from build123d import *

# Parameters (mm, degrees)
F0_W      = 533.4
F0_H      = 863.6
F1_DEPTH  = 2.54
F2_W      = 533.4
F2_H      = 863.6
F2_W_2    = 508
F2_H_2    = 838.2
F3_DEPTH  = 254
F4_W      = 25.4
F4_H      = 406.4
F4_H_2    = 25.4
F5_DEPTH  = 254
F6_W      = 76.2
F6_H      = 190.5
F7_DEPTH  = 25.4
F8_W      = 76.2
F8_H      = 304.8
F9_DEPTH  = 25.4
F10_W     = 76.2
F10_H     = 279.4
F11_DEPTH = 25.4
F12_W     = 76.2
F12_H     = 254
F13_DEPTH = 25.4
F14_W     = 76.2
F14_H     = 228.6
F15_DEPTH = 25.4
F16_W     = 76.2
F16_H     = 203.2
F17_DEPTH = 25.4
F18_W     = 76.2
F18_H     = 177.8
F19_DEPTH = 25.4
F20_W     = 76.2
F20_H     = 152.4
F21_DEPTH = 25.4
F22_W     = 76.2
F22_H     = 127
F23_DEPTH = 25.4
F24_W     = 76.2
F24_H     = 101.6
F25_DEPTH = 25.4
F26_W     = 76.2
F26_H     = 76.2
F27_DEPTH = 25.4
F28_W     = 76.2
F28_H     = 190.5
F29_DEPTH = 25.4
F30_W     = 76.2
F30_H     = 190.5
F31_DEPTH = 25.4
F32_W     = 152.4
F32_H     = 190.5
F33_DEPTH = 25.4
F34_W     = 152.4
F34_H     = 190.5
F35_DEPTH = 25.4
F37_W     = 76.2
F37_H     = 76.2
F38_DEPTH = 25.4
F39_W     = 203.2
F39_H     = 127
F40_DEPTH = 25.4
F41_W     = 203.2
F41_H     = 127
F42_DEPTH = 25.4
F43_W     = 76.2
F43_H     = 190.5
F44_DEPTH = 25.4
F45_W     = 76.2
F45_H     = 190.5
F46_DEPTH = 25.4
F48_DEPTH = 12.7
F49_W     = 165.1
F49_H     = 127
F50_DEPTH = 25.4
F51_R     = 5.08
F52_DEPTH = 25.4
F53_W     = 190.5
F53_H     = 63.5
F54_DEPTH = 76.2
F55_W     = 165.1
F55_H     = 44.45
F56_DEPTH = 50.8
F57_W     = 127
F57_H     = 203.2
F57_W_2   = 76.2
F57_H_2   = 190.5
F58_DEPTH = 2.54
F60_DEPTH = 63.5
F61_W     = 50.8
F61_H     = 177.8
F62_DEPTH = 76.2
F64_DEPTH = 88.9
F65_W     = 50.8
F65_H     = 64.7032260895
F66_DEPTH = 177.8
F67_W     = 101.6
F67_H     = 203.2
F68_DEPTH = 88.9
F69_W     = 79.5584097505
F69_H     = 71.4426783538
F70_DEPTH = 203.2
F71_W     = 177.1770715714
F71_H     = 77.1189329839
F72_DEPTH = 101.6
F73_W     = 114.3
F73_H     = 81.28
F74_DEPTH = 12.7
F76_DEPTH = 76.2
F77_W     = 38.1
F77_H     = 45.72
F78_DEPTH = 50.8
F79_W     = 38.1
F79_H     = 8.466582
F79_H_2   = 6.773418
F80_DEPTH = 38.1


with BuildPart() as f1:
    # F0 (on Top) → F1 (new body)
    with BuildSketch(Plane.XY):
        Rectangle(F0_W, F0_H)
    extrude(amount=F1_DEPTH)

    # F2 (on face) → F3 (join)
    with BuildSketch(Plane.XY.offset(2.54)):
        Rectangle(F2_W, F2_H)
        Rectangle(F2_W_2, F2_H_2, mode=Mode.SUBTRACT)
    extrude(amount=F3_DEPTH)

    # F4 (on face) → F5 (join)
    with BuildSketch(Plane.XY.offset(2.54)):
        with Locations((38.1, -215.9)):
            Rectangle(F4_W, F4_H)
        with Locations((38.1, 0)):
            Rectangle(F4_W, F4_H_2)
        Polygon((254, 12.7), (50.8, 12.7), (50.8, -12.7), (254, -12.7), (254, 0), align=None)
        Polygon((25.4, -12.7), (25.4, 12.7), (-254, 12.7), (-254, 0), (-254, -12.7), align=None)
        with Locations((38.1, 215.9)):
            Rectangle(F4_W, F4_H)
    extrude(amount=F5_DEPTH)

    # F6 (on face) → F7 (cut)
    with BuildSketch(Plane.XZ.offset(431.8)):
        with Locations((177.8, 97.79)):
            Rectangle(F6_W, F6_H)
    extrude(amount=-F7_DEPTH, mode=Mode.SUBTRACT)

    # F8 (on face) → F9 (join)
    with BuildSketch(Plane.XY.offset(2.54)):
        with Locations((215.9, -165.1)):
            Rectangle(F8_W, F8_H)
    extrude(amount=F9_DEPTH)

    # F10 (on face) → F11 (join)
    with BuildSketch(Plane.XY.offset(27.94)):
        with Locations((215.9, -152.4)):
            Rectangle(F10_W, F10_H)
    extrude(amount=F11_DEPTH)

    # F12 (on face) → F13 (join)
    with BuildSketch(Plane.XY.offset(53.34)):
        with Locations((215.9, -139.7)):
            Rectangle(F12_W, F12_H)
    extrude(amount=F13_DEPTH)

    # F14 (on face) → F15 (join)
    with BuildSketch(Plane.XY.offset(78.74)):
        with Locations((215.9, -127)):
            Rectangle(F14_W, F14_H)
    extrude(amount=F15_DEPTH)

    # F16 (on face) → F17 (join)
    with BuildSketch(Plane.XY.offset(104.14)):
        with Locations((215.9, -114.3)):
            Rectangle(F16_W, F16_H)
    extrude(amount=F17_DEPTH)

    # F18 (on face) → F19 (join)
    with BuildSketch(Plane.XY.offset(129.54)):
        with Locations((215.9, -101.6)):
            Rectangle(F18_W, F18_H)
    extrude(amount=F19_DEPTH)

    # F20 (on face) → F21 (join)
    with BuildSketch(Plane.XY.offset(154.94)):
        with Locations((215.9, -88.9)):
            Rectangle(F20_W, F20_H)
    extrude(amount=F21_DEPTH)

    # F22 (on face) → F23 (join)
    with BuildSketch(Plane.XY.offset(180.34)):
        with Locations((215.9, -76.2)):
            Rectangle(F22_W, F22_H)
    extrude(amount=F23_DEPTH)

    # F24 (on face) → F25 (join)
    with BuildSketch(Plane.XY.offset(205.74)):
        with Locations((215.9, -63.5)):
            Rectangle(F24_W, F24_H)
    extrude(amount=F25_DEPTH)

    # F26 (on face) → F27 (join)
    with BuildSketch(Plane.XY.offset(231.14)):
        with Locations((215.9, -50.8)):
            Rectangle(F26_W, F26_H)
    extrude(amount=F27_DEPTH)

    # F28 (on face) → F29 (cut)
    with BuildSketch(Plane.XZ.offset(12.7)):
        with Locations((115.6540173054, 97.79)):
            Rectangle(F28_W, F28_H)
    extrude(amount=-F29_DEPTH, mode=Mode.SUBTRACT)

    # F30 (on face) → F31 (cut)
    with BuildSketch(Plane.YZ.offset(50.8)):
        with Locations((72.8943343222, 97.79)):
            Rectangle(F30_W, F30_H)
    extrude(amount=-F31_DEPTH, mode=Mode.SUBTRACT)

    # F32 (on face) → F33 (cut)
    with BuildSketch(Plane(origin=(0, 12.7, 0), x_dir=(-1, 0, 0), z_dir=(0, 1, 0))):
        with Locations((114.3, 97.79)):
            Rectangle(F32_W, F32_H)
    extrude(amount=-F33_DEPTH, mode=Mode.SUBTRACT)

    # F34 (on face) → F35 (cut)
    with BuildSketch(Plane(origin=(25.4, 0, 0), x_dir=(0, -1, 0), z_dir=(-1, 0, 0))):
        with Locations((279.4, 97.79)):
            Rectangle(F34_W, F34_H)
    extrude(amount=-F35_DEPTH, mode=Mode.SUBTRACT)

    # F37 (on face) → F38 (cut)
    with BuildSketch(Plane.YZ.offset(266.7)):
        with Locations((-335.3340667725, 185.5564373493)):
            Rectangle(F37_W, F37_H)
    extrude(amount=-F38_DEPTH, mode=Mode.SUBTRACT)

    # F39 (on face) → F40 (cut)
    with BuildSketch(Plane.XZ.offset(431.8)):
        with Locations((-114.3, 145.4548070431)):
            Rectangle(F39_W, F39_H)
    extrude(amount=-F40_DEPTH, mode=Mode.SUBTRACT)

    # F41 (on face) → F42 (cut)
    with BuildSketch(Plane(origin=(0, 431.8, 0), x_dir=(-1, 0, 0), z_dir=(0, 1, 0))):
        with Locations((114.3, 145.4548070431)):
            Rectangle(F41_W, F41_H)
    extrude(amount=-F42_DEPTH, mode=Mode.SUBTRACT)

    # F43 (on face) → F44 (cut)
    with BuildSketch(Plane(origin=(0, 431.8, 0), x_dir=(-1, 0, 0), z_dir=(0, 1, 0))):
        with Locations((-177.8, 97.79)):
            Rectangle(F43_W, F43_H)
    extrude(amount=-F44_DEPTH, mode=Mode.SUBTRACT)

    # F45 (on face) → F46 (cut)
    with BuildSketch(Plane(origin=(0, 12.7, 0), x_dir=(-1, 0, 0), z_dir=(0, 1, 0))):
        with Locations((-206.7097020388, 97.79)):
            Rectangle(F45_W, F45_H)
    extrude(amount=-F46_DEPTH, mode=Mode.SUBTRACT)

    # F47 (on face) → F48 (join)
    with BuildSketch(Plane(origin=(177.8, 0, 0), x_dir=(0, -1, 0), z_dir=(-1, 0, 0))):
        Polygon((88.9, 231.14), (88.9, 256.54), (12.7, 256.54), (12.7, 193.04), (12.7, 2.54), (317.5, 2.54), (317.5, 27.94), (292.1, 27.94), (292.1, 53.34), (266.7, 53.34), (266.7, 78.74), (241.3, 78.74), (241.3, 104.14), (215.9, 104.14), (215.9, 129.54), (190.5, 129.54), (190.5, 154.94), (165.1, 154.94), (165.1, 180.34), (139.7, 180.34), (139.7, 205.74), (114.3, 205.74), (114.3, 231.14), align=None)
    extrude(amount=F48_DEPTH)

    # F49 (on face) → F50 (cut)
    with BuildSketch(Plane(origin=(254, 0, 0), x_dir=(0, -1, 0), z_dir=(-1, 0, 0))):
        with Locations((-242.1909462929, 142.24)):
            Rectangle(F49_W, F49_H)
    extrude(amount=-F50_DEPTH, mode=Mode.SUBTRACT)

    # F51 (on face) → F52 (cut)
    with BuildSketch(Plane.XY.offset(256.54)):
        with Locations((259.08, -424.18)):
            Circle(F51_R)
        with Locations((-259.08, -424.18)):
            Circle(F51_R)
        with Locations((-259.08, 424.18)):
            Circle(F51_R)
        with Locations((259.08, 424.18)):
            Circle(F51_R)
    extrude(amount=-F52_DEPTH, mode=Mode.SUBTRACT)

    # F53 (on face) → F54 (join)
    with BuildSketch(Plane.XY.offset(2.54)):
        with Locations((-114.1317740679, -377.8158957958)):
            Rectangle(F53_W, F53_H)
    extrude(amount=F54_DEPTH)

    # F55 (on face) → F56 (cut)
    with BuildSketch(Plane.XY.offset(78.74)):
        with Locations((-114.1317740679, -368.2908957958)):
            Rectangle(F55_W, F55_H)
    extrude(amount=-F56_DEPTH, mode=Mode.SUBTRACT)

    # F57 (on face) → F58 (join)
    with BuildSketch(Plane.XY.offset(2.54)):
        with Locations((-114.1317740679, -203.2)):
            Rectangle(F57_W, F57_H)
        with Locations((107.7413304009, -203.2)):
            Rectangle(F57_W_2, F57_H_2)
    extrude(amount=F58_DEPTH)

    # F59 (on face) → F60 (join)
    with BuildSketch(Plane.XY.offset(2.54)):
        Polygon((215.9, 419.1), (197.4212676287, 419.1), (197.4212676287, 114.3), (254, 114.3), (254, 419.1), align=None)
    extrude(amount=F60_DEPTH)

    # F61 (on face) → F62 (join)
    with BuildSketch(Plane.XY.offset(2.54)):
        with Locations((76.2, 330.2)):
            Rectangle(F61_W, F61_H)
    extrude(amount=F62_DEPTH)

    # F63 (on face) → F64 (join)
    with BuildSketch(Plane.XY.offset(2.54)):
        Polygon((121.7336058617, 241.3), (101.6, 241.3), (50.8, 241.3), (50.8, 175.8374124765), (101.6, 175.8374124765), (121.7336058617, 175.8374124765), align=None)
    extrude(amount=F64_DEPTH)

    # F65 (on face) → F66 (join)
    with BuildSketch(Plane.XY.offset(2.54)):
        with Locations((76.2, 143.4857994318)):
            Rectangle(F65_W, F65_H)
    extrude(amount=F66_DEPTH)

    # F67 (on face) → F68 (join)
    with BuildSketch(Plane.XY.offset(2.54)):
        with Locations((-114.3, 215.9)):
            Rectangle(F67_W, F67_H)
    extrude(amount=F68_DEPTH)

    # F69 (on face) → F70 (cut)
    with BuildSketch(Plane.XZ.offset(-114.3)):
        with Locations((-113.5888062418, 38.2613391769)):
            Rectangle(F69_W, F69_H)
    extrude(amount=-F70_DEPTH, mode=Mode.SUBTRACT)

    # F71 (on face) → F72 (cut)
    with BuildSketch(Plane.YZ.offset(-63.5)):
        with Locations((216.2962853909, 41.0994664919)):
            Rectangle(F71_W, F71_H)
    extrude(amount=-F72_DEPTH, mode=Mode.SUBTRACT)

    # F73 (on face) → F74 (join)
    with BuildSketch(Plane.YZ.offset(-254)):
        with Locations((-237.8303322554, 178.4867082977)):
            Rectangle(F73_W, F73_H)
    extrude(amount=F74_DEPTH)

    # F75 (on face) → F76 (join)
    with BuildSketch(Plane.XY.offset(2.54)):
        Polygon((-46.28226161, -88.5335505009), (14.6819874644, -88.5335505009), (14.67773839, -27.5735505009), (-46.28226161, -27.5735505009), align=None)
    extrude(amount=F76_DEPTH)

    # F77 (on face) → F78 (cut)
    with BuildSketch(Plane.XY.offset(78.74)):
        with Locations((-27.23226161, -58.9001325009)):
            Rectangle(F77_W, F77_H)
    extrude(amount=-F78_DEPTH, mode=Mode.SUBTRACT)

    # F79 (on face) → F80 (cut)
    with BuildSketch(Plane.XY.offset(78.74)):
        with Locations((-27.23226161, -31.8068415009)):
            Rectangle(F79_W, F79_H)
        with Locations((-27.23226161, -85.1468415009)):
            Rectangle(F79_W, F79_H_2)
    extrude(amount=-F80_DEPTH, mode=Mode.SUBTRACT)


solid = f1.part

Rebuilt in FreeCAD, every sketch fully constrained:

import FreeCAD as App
import Part
import Sketcher
from FreeCAD import Vector
Q = App.Units.Quantity


def add_polygon(sketch, points):
    """Adds a closed chain of lines whose ends are joined by coincident constraints."""
    first, n = sketch.GeometryCount, len(points)
    for a, b in zip(points, points[1:] + points[:1]):
        sketch.addGeometry(Part.LineSegment(App.Vector(*a, 0), App.Vector(*b, 0)), False)
    for i in range(n):
        sketch.addConstraint(Sketcher.Constraint("Coincident", first + i, 2, first + (i + 1) % n, 1))

doc = App.newDocument("Part")
body = doc.addObject("PartDesign::Body", "Body")

# Sketch on XY plane
sketch1 = body.newObject("Sketcher::SketchObject", "Sketch")
sketch1.AttachmentSupport = (doc.getObject("XY_Plane"), [""])
sketch1.MapMode = "FlatFace"
add_polygon(sketch1, [(-267, 432), (-267, -432), (267, -432), (267, 432)])  # lines 0-3
sketch1.addConstraint([
    Sketcher.Constraint("Vertical", 0),
    Sketcher.Constraint("Horizontal", 1),
    Sketcher.Constraint("Vertical", 2),
    Sketcher.Constraint("Horizontal", 3),
    Sketcher.Constraint("Symmetric", 0, 2, 2, 2, -1, 1),
    Sketcher.Constraint("DistanceX", 1, 1, 1, 2, Q("21 in")),
    Sketcher.Constraint("DistanceY", 0, 2, 0, 1, Q("34 in")),
])
pad1 = body.newObject("PartDesign::Pad", "Pad")
pad1.Profile = sketch1
pad1.Length = Q("0.1 in")

# Sketch on XY plane
sketch2 = body.newObject("Sketcher::SketchObject", "Sketch001")
sketch2.AttachmentSupport = (doc.getObject("XY_Plane"), [""])
sketch2.MapMode = "FlatFace"
sketch2.AttachmentOffset = App.Placement(Vector(0, 0, 0.1 * 25.4), App.Rotation())
add_polygon(sketch2, [(-267, 432), (-267, -432), (267, -432), (267, 432)])  # lines 0-3
add_polygon(sketch2, [(254, -419), (-254, -419), (-254, 419), (254, 419)])  # lines 4-7
sketch2.addConstraint([
    Sketcher.Constraint("Vertical", 0),
    Sketcher.Constraint("Horizontal", 1),
    Sketcher.Constraint("Vertical", 2),
    Sketcher.Constraint("Horizontal", 3),
    Sketcher.Constraint("Horizontal", 4),
    Sketcher.Constraint("Vertical", 5),
    Sketcher.Constraint("Horizontal", 6),
    Sketcher.Constraint("Vertical", 7),
    Sketcher.Constraint("Symmetric", 0, 2, 2, 2, -1, 1),
    Sketcher.Constraint("Symmetric", 4, 2, 6, 2, -1, 1),
    Sketcher.Constraint("DistanceX", 1, 1, 1, 2, Q("21 in")),
    Sketcher.Constraint("DistanceX", 4, 2, 4, 1, Q("20 in")),
    Sketcher.Constraint("DistanceY", 0, 2, 0, 1, Q("34 in")),
    Sketcher.Constraint("DistanceY", 5, 1, 5, 2, Q("33 in")),
])
pad2 = body.newObject("PartDesign::Pad", "Pad001")
pad2.Profile = sketch2
pad2.Length = Q("10 in")

# Sketch on XY plane
sketch3 = body.newObject("Sketcher::SketchObject", "Sketch002")
sketch3.AttachmentSupport = (doc.getObject("XY_Plane"), [""])
sketch3.MapMode = "FlatFace"
sketch3.AttachmentOffset = App.Placement(Vector(0, 0, 0.1 * 25.4), App.Rotation())
add_polygon(sketch3, [(25, -419), (51, -419), (51, -13), (254, -13), (254, 13), (51, 13), (51, 419), (25, 419), (25, 13), (-254, 13), (-254, -13), (25, -13)])  # lines 0-11
sketch3.addConstraint([
    Sketcher.Constraint("Horizontal", 0),
    Sketcher.Constraint("Vertical", 1),
    Sketcher.Constraint("Horizontal", 2),
    Sketcher.Constraint("Vertical", 3),
    Sketcher.Constraint("Horizontal", 4),
    Sketcher.Constraint("Vertical", 5),
    Sketcher.Constraint("Horizontal", 6),
    Sketcher.Constraint("Vertical", 7),
    Sketcher.Constraint("Horizontal", 8),
    Sketcher.Constraint("Vertical", 9),
    Sketcher.Constraint("Horizontal", 10),
    Sketcher.Constraint("Vertical", 11),
    Sketcher.Constraint("Symmetric", 2, 2, 8, 2, -1, 1),
    Sketcher.Constraint("Symmetric", 1, 2, 4, 2, -1),
    Sketcher.Constraint("Symmetric", 7, 2, 10, 2, -1),
    Sketcher.Constraint("Equal", 6, 3),
    Sketcher.Constraint("Equal", 1, 5),
    Sketcher.Constraint("DistanceX", 0, 1, 0, 2, Q("1 in")),
    Sketcher.Constraint("DistanceX", 2, 1, 2, 2, Q("8 in")),
    Sketcher.Constraint("DistanceX", 8, 2, 8, 1, Q("11 in")),
    Sketcher.Constraint("DistanceY", 1, 1, 1, 2, Q("16 in")),
])
pad3 = body.newObject("PartDesign::Pad", "Pad002")
pad3.Profile = sketch3
pad3.Length = Q("10 in")

# Sketch on XZ plane
sketch4 = body.newObject("Sketcher::SketchObject", "Sketch003")
sketch4.AttachmentSupport = (doc.getObject("XZ_Plane"), [""])
sketch4.MapMode = "FlatFace"
sketch4.AttachmentOffset = App.Placement(Vector(0, 0, 17 * 25.4), App.Rotation())
add_polygon(sketch4, [(140, 193), (140, 3), (216, 3), (216, 193)])  # lines 0-3
sketch4.addConstraint([
    Sketcher.Constraint("Vertical", 0),
    Sketcher.Constraint("Horizontal", 1),
    Sketcher.Constraint("Vertical", 2),
    Sketcher.Constraint("Horizontal", 3),
    Sketcher.Constraint("DistanceX", 1, 1, 1, 2, Q("3 in")),
    Sketcher.Constraint("DistanceY", 0, 2, 0, 1, Q("7.5 in")),
    Sketcher.Constraint("DistanceX", -1, 1, 0, 2, Q("5.5 in")),
    Sketcher.Constraint("DistanceY", -1, 1, 0, 2, Q("0.1 in")),
])
pocket1 = body.newObject("PartDesign::Pocket", "Pocket")
pocket1.Profile = sketch4
pocket1.Length = Q("1 in")

# Sketch on XY plane
sketch5 = body.newObject("Sketcher::SketchObject", "Sketch004")
sketch5.AttachmentSupport = (doc.getObject("XY_Plane"), [""])
sketch5.MapMode = "FlatFace"
sketch5.AttachmentOffset = App.Placement(Vector(0, 0, 0.1 * 25.4), App.Rotation())
add_polygon(sketch5, [(178, -13), (178, -318), (254, -318), (254, -13)])  # lines 0-3
sketch5.addConstraint([
    Sketcher.Constraint("Vertical", 0),
    Sketcher.Constraint("Horizontal", 1),
    Sketcher.Constraint("Vertical", 2),
    Sketcher.Constraint("Horizontal", 3),
    Sketcher.Constraint("DistanceX", 1, 1, 1, 2, Q("3 in")),
    Sketcher.Constraint("DistanceY", 0, 2, 0, 1, Q("12 in")),
    Sketcher.Constraint("DistanceX", -1, 1, 0, 2, Q("7 in")),
    Sketcher.Constraint("DistanceY", 0, 2, -1, 1, Q("12.5 in")),
])
pad4 = body.newObject("PartDesign::Pad", "Pad003")
pad4.Profile = sketch5
pad4.Length = Q("1 in")

# Sketch on XY plane
sketch6 = body.newObject("Sketcher::SketchObject", "Sketch005")
sketch6.AttachmentSupport = (doc.getObject("XY_Plane"), [""])
sketch6.MapMode = "FlatFace"
sketch6.AttachmentOffset = App.Placement(Vector(0, 0, 1.1 * 25.4), App.Rotation())
add_polygon(sketch6, [(178, -13), (178, -292), (254, -292), (254, -13)])  # lines 0-3
sketch6.addConstraint([
    Sketcher.Constraint("Vertical", 0),
    Sketcher.Constraint("Horizontal", 1),
    Sketcher.Constraint("Vertical", 2),
    Sketcher.Constraint("Horizontal", 3),
    Sketcher.Constraint("DistanceX", 1, 1, 1, 2, Q("3 in")),
    Sketcher.Constraint("DistanceY", 0, 2, 0, 1, Q("11 in")),
    Sketcher.Constraint("DistanceX", -1, 1, 0, 2, Q("7 in")),
    Sketcher.Constraint("DistanceY", 0, 2, -1, 1, Q("11.5 in")),
])
pad5 = body.newObject("PartDesign::Pad", "Pad004")
pad5.Profile = sketch6
pad5.Length = Q("1 in")

# Sketch on XY plane
sketch7 = body.newObject("Sketcher::SketchObject", "Sketch006")
sketch7.AttachmentSupport = (doc.getObject("XY_Plane"), [""])
sketch7.MapMode = "FlatFace"
sketch7.AttachmentOffset = App.Placement(Vector(0, 0, 2.1 * 25.4), App.Rotation())
add_polygon(sketch7, [(178, -13), (178, -267), (254, -267), (254, -13)])  # lines 0-3
sketch7.addConstraint([
    Sketcher.Constraint("Vertical", 0),
    Sketcher.Constraint("Horizontal", 1),
    Sketcher.Constraint("Vertical", 2),
    Sketcher.Constraint("Horizontal", 3),
    Sketcher.Constraint("DistanceX", 1, 1, 1, 2, Q("3 in")),
    Sketcher.Constraint("DistanceY", 0, 2, 0, 1, Q("10 in")),
    Sketcher.Constraint("DistanceX", -1, 1, 0, 2, Q("7 in")),
    Sketcher.Constraint("DistanceY", 0, 2, -1, 1, Q("10.5 in")),
])
pad6 = body.newObject("PartDesign::Pad", "Pad005")
pad6.Profile = sketch7
pad6.Length = Q("1 in")

# Sketch on XY plane
sketch8 = body.newObject("Sketcher::SketchObject", "Sketch007")
sketch8.AttachmentSupport = (doc.getObject("XY_Plane"), [""])
sketch8.MapMode = "FlatFace"
sketch8.AttachmentOffset = App.Placement(Vector(0, 0, 3.1 * 25.4), App.Rotation())
add_polygon(sketch8, [(178, -13), (178, -241), (254, -241), (254, -13)])  # lines 0-3
sketch8.addConstraint([
    Sketcher.Constraint("Vertical", 0),
    Sketcher.Constraint("Horizontal", 1),
    Sketcher.Constraint("Vertical", 2),
    Sketcher.Constraint("Horizontal", 3),
    Sketcher.Constraint("DistanceX", 1, 1, 1, 2, Q("3 in")),
    Sketcher.Constraint("DistanceY", 0, 2, 0, 1, Q("9 in")),
    Sketcher.Constraint("DistanceX", -1, 1, 0, 2, Q("7 in")),
    Sketcher.Constraint("DistanceY", 0, 2, -1, 1, Q("9.5 in")),
])
pad7 = body.newObject("PartDesign::Pad", "Pad006")
pad7.Profile = sketch8
pad7.Length = Q("1 in")

# Sketch on XY plane
sketch9 = body.newObject("Sketcher::SketchObject", "Sketch008")
sketch9.AttachmentSupport = (doc.getObject("XY_Plane"), [""])
sketch9.MapMode = "FlatFace"
sketch9.AttachmentOffset = App.Placement(Vector(0, 0, 4.1 * 25.4), App.Rotation())
add_polygon(sketch9, [(178, -13), (178, -216), (254, -216), (254, -13)])  # lines 0-3
sketch9.addConstraint([
    Sketcher.Constraint("Vertical", 0),
    Sketcher.Constraint("Horizontal", 1),
    Sketcher.Constraint("Vertical", 2),
    Sketcher.Constraint("Horizontal", 3),
    Sketcher.Constraint("DistanceX", 1, 1, 1, 2, Q("3 in")),
    Sketcher.Constraint("DistanceY", 0, 2, 0, 1, Q("8 in")),
    Sketcher.Constraint("DistanceX", -1, 1, 0, 2, Q("7 in")),
    Sketcher.Constraint("DistanceY", 0, 2, -1, 1, Q("8.5 in")),
])
pad8 = body.newObject("PartDesign::Pad", "Pad007")
pad8.Profile = sketch9
pad8.Length = Q("1 in")

# Sketch on XY plane
sketch10 = body.newObject("Sketcher::SketchObject", "Sketch009")
sketch10.AttachmentSupport = (doc.getObject("XY_Plane"), [""])
sketch10.MapMode = "FlatFace"
sketch10.AttachmentOffset = App.Placement(Vector(0, 0, 5.1 * 25.4), App.Rotation())
add_polygon(sketch10, [(178, -13), (178, -190), (254, -190), (254, -13)])  # lines 0-3
sketch10.addConstraint([
    Sketcher.Constraint("Vertical", 0),
    Sketcher.Constraint("Horizontal", 1),
    Sketcher.Constraint("Vertical", 2),
    Sketcher.Constraint("Horizontal", 3),
    Sketcher.Constraint("DistanceX", 1, 1, 1, 2, Q("3 in")),
    Sketcher.Constraint("DistanceY", 0, 2, 0, 1, Q("7 in")),
    Sketcher.Constraint("DistanceX", -1, 1, 0, 2, Q("7 in")),
    Sketcher.Constraint("DistanceY", 0, 2, -1, 1, Q("7.5 in")),
])
pad9 = body.newObject("PartDesign::Pad", "Pad008")
pad9.Profile = sketch10
pad9.Length = Q("1 in")

# Sketch on XY plane
sketch11 = body.newObject("Sketcher::SketchObject", "Sketch010")
sketch11.AttachmentSupport = (doc.getObject("XY_Plane"), [""])
sketch11.MapMode = "FlatFace"
sketch11.AttachmentOffset = App.Placement(Vector(0, 0, 6.1 * 25.4), App.Rotation())
add_polygon(sketch11, [(178, -13), (178, -165), (254, -165), (254, -13)])  # lines 0-3
sketch11.addConstraint([
    Sketcher.Constraint("Vertical", 0),
    Sketcher.Constraint("Horizontal", 1),
    Sketcher.Constraint("Vertical", 2),
    Sketcher.Constraint("Horizontal", 3),
    Sketcher.Constraint("DistanceX", 1, 1, 1, 2, Q("3 in")),
    Sketcher.Constraint("DistanceY", 0, 2, 0, 1, Q("6 in")),
    Sketcher.Constraint("DistanceX", -1, 1, 0, 2, Q("7 in")),
    Sketcher.Constraint("DistanceY", 0, 2, -1, 1, Q("6.5 in")),
])
pad10 = body.newObject("PartDesign::Pad", "Pad009")
pad10.Profile = sketch11
pad10.Length = Q("1 in")

# Sketch on XY plane
sketch12 = body.newObject("Sketcher::SketchObject", "Sketch011")
sketch12.AttachmentSupport = (doc.getObject("XY_Plane"), [""])
sketch12.MapMode = "FlatFace"
sketch12.AttachmentOffset = App.Placement(Vector(0, 0, 7.1 * 25.4), App.Rotation())
add_polygon(sketch12, [(178, -13), (178, -140), (254, -140), (254, -13)])  # lines 0-3
sketch12.addConstraint([
    Sketcher.Constraint("Vertical", 0),
    Sketcher.Constraint("Horizontal", 1),
    Sketcher.Constraint("Vertical", 2),
    Sketcher.Constraint("Horizontal", 3),
    Sketcher.Constraint("DistanceX", 1, 1, 1, 2, Q("3 in")),
    Sketcher.Constraint("DistanceY", 0, 2, 0, 1, Q("5 in")),
    Sketcher.Constraint("DistanceX", -1, 1, 0, 2, Q("7 in")),
    Sketcher.Constraint("DistanceY", 0, 2, -1, 1, Q("5.5 in")),
])
pad11 = body.newObject("PartDesign::Pad", "Pad010")
pad11.Profile = sketch12
pad11.Length = Q("1 in")

# Sketch on XY plane
sketch13 = body.newObject("Sketcher::SketchObject", "Sketch012")
sketch13.AttachmentSupport = (doc.getObject("XY_Plane"), [""])
sketch13.MapMode = "FlatFace"
sketch13.AttachmentOffset = App.Placement(Vector(0, 0, 8.1 * 25.4), App.Rotation())
add_polygon(sketch13, [(178, -13), (178, -114), (254, -114), (254, -13)])  # lines 0-3
sketch13.addConstraint([
    Sketcher.Constraint("Vertical", 0),
    Sketcher.Constraint("Horizontal", 1),
    Sketcher.Constraint("Vertical", 2),
    Sketcher.Constraint("Horizontal", 3),
    Sketcher.Constraint("DistanceX", 1, 1, 1, 2, Q("3 in")),
    Sketcher.Constraint("DistanceY", 0, 2, 0, 1, Q("4 in")),
    Sketcher.Constraint("DistanceX", -1, 1, 0, 2, Q("7 in")),
    Sketcher.Constraint("DistanceY", 0, 2, -1, 1, Q("4.5 in")),
])
pad12 = body.newObject("PartDesign::Pad", "Pad011")
pad12.Profile = sketch13
pad12.Length = Q("1 in")

# Sketch on XY plane
sketch14 = body.newObject("Sketcher::SketchObject", "Sketch013")
sketch14.AttachmentSupport = (doc.getObject("XY_Plane"), [""])
sketch14.MapMode = "FlatFace"
sketch14.AttachmentOffset = App.Placement(Vector(0, 0, 9.1 * 25.4), App.Rotation())
add_polygon(sketch14, [(178, -13), (178, -89), (254, -89), (254, -13)])  # lines 0-3
sketch14.addConstraint([
    Sketcher.Constraint("Vertical", 0),
    Sketcher.Constraint("Horizontal", 1),
    Sketcher.Constraint("Vertical", 2),
    Sketcher.Constraint("Horizontal", 3),
    Sketcher.Constraint("Equal", 3, 0),
    Sketcher.Constraint("DistanceX", 1, 1, 1, 2, Q("3 in")),
    Sketcher.Constraint("DistanceX", -1, 1, 0, 2, Q("7 in")),
    Sketcher.Constraint("DistanceY", 0, 2, -1, 1, Q("3.5 in")),
])
pad13 = body.newObject("PartDesign::Pad", "Pad012")
pad13.Profile = sketch14
pad13.Length = Q("1 in")

# Sketch on XZ plane
sketch15 = body.newObject("Sketcher::SketchObject", "Sketch014")
sketch15.AttachmentSupport = (doc.getObject("XZ_Plane"), [""])
sketch15.MapMode = "FlatFace"
sketch15.AttachmentOffset = App.Placement(Vector(0, 0, 0.5 * 25.4), App.Rotation())
add_polygon(sketch15, [(78, 193), (78, 3), (154, 3), (154, 193)])  # lines 0-3
sketch15.addConstraint([
    Sketcher.Constraint("Vertical", 0),
    Sketcher.Constraint("Horizontal", 1),
    Sketcher.Constraint("Vertical", 2),
    Sketcher.Constraint("Horizontal", 3),
    Sketcher.Constraint("DistanceX", 1, 1, 1, 2, Q("3 in")),
    Sketcher.Constraint("DistanceY", 0, 2, 0, 1, Q("7.5 in")),
    Sketcher.Constraint("DistanceY", -1, 1, 0, 2, Q("0.1 in")),
    Sketcher.Constraint("DistanceX", -1, 1, 0, 2, 77.554017),
])
pocket2 = body.newObject("PartDesign::Pocket", "Pocket001")
pocket2.Profile = sketch15
pocket2.Length = Q("1 in")

# Sketch on YZ plane
sketch16 = body.newObject("Sketcher::SketchObject", "Sketch015")
sketch16.AttachmentSupport = (doc.getObject("YZ_Plane"), [""])
sketch16.MapMode = "FlatFace"
sketch16.AttachmentOffset = App.Placement(Vector(0, 0, 2 * 25.4), App.Rotation())
add_polygon(sketch16, [(35, 193), (35, 3), (111, 3), (111, 193)])  # lines 0-3
sketch16.addConstraint([
    Sketcher.Constraint("Vertical", 0),
    Sketcher.Constraint("Horizontal", 1),
    Sketcher.Constraint("Vertical", 2),
    Sketcher.Constraint("Horizontal", 3),
    Sketcher.Constraint("DistanceX", 1, 1, 1, 2, Q("3 in")),
    Sketcher.Constraint("DistanceY", 0, 2, 0, 1, Q("7.5 in")),
    Sketcher.Constraint("DistanceY", -1, 1, 0, 2, Q("0.1 in")),
    Sketcher.Constraint("DistanceX", -1, 1, 0, 2, 34.794334),
])
pocket3 = body.newObject("PartDesign::Pocket", "Pocket002")
pocket3.Profile = sketch16
pocket3.Length = Q("1 in")

# Sketch on XZ plane
sketch17 = body.newObject("Sketcher::SketchObject", "Sketch016")
sketch17.AttachmentSupport = (doc.getObject("XZ_Plane"), [""])
sketch17.MapMode = "FlatFace"
sketch17.AttachmentOffset = App.Placement(Vector(0, 0, -0.5 * 25.4), App.Rotation())
add_polygon(sketch17, [(-38, 193), (-38, 3), (-190, 3), (-190, 193)])  # lines 0-3
sketch17.addConstraint([
    Sketcher.Constraint("Vertical", 0),
    Sketcher.Constraint("Horizontal", 1),
    Sketcher.Constraint("Vertical", 2),
    Sketcher.Constraint("Horizontal", 3),
    Sketcher.Constraint("DistanceX", 1, 2, 1, 1, Q("6 in")),
    Sketcher.Constraint("DistanceY", 0, 2, 0, 1, Q("7.5 in")),
    Sketcher.Constraint("DistanceX", 0, 2, -1, 1, Q("1.5 in")),
    Sketcher.Constraint("DistanceY", -1, 1, 0, 2, Q("0.1 in")),
])
pocket4 = body.newObject("PartDesign::Pocket", "Pocket003")
pocket4.Profile = sketch17
pocket4.Length = Q("1 in")
pocket4.Reversed = True

# Sketch on YZ plane
sketch18 = body.newObject("Sketcher::SketchObject", "Sketch017")
sketch18.AttachmentSupport = (doc.getObject("YZ_Plane"), [""])
sketch18.MapMode = "FlatFace"
sketch18.AttachmentOffset = App.Placement(Vector(0, 0, 1 * 25.4), App.Rotation())
add_polygon(sketch18, [(-203, 193), (-203, 3), (-356, 3), (-356, 193)])  # lines 0-3
sketch18.addConstraint([
    Sketcher.Constraint("Vertical", 0),
    Sketcher.Constraint("Horizontal", 1),
    Sketcher.Constraint("Vertical", 2),
    Sketcher.Constraint("Horizontal", 3),
    Sketcher.Constraint("DistanceX", 1, 2, 1, 1, Q("6 in")),
    Sketcher.Constraint("DistanceY", 0, 2, 0, 1, Q("7.5 in")),
    Sketcher.Constraint("DistanceX", 0, 2, -1, 1, Q("8 in")),
    Sketcher.Constraint("DistanceY", -1, 1, 0, 2, Q("0.1 in")),
])
pocket5 = body.newObject("PartDesign::Pocket", "Pocket004")
pocket5.Profile = sketch18
pocket5.Length = Q("1 in")
pocket5.Reversed = True

# Sketch on YZ plane
sketch19 = body.newObject("Sketcher::SketchObject", "Sketch018")
sketch19.AttachmentSupport = (doc.getObject("YZ_Plane"), [""])
sketch19.MapMode = "FlatFace"
sketch19.AttachmentOffset = App.Placement(Vector(0, 0, 10.5 * 25.4), App.Rotation())
add_polygon(sketch19, [(-373, 224), (-373, 147), (-297, 147), (-297, 224)])  # lines 0-3
sketch19.addConstraint([
    Sketcher.Constraint("Vertical", 0),
    Sketcher.Constraint("Horizontal", 1),
    Sketcher.Constraint("Vertical", 2),
    Sketcher.Constraint("Horizontal", 3),
    Sketcher.Constraint("Equal", 3, 0),
    Sketcher.Constraint("DistanceX", 1, 1, 1, 2, Q("3 in")),
    Sketcher.Constraint("DistanceX", 0, 2, -1, 1, 373.434067),
    Sketcher.Constraint("DistanceY", -1, 1, 0, 2, 147.456437),
])
pocket6 = body.newObject("PartDesign::Pocket", "Pocket005")
pocket6.Profile = sketch19
pocket6.Length = Q("1 in")

# Sketch on XZ plane
sketch20 = body.newObject("Sketcher::SketchObject", "Sketch019")
sketch20.AttachmentSupport = (doc.getObject("XZ_Plane"), [""])
sketch20.MapMode = "FlatFace"
sketch20.AttachmentOffset = App.Placement(Vector(0, 0, 17 * 25.4), App.Rotation())
add_polygon(sketch20, [(-216, 209), (-216, 82), (-13, 82), (-13, 209)])  # lines 0-3
sketch20.addConstraint([
    Sketcher.Constraint("Vertical", 0),
    Sketcher.Constraint("Horizontal", 1),
    Sketcher.Constraint("Vertical", 2),
    Sketcher.Constraint("Horizontal", 3),
    Sketcher.Constraint("DistanceX", 1, 1, 1, 2, Q("8 in")),
    Sketcher.Constraint("DistanceY", 0, 2, 0, 1, Q("5 in")),
    Sketcher.Constraint("DistanceX", 0, 2, -1, 1, Q("8.5 in")),
    Sketcher.Constraint("DistanceY", -1, 1, 0, 2, 81.954807),
])
pocket7 = body.newObject("PartDesign::Pocket", "Pocket006")
pocket7.Profile = sketch20
pocket7.Length = Q("1 in")

# Sketch on XZ plane
sketch21 = body.newObject("Sketcher::SketchObject", "Sketch020")
sketch21.AttachmentSupport = (doc.getObject("XZ_Plane"), [""])
sketch21.MapMode = "FlatFace"
sketch21.AttachmentOffset = App.Placement(Vector(0, 0, -17 * 25.4), App.Rotation())
add_polygon(sketch21, [(-13, 209), (-13, 82), (-216, 82), (-216, 209)])  # lines 0-3
sketch21.addConstraint([
    Sketcher.Constraint("Vertical", 0),
    Sketcher.Constraint("Horizontal", 1),
    Sketcher.Constraint("Vertical", 2),
    Sketcher.Constraint("Horizontal", 3),
    Sketcher.Constraint("DistanceX", 1, 2, 1, 1, Q("8 in")),
    Sketcher.Constraint("DistanceY", 0, 2, 0, 1, Q("5 in")),
    Sketcher.Constraint("DistanceX", 0, 2, -1, 1, Q("0.5 in")),
    Sketcher.Constraint("DistanceY", -1, 1, 0, 2, 81.954807),
])
pocket8 = body.newObject("PartDesign::Pocket", "Pocket007")
pocket8.Profile = sketch21
pocket8.Length = Q("1 in")
pocket8.Reversed = True

# Sketch on XZ plane
sketch22 = body.newObject("Sketcher::SketchObject", "Sketch021")
sketch22.AttachmentSupport = (doc.getObject("XZ_Plane"), [""])
sketch22.MapMode = "FlatFace"
sketch22.AttachmentOffset = App.Placement(Vector(0, 0, -17 * 25.4), App.Rotation())
add_polygon(sketch22, [(216, 193), (216, 3), (140, 3), (140, 193)])  # lines 0-3
sketch22.addConstraint([
    Sketcher.Constraint("Vertical", 0),
    Sketcher.Constraint("Horizontal", 1),
    Sketcher.Constraint("Vertical", 2),
    Sketcher.Constraint("Horizontal", 3),
    Sketcher.Constraint("DistanceX", 1, 2, 1, 1, Q("3 in")),
    Sketcher.Constraint("DistanceY", 0, 2, 0, 1, Q("7.5 in")),
    Sketcher.Constraint("DistanceX", -1, 1, 0, 2, Q("8.5 in")),
    Sketcher.Constraint("DistanceY", -1, 1, 0, 2, Q("0.1 in")),
])
pocket9 = body.newObject("PartDesign::Pocket", "Pocket008")
pocket9.Profile = sketch22
pocket9.Length = Q("1 in")
pocket9.Reversed = True

# Sketch on XZ plane
sketch23 = body.newObject("Sketcher::SketchObject", "Sketch022")
sketch23.AttachmentSupport = (doc.getObject("XZ_Plane"), [""])
sketch23.MapMode = "FlatFace"
sketch23.AttachmentOffset = App.Placement(Vector(0, 0, -0.5 * 25.4), App.Rotation())
add_polygon(sketch23, [(245, 193), (245, 3), (169, 3), (169, 193)])  # lines 0-3
sketch23.addConstraint([
    Sketcher.Constraint("Vertical", 0),
    Sketcher.Constraint("Horizontal", 1),
    Sketcher.Constraint("Vertical", 2),
    Sketcher.Constraint("Horizontal", 3),
    Sketcher.Constraint("DistanceX", 1, 2, 1, 1, Q("3 in")),
    Sketcher.Constraint("DistanceY", 0, 2, 0, 1, Q("7.5 in")),
    Sketcher.Constraint("DistanceY", -1, 1, 0, 2, Q("0.1 in")),
    Sketcher.Constraint("DistanceX", -1, 1, 0, 2, 244.809702),
])
pocket10 = body.newObject("PartDesign::Pocket", "Pocket009")
pocket10.Profile = sketch23
pocket10.Length = Q("1 in")
pocket10.Reversed = True

# Sketch on YZ plane
sketch24 = body.newObject("Sketcher::SketchObject", "Sketch023")
sketch24.AttachmentSupport = (doc.getObject("YZ_Plane"), [""])
sketch24.MapMode = "FlatFace"
sketch24.AttachmentOffset = App.Placement(Vector(0, 0, 7 * 25.4), App.Rotation())
add_polygon(sketch24, [(-89, 231), (-89, 257), (-13, 257), (-13, 3), (-318, 3), (-318, 28), (-292, 28), (-292, 53), (-267, 53), (-267, 79), (-241, 79), (-241, 104), (-216, 104), (-216, 130), (-190, 130), (-190, 155), (-165, 155), (-165, 180), (-140, 180), (-140, 206), (-114, 206), (-114, 231)])  # lines 0-21
sketch24.addConstraint([
    Sketcher.Constraint("Vertical", 0),
    Sketcher.Constraint("Horizontal", 1),
    Sketcher.Constraint("Vertical", 2),
    Sketcher.Constraint("Horizontal", 3),
    Sketcher.Constraint("Vertical", 4),
    Sketcher.Constraint("Horizontal", 5),
    Sketcher.Constraint("Vertical", 6),
    Sketcher.Constraint("Horizontal", 7),
    Sketcher.Constraint("Vertical", 8),
    Sketcher.Constraint("Horizontal", 9),
    Sketcher.Constraint("Vertical", 10),
    Sketcher.Constraint("Horizontal", 11),
    Sketcher.Constraint("Vertical", 12),
    Sketcher.Constraint("Horizontal", 13),
    Sketcher.Constraint("Vertical", 14),
    Sketcher.Constraint("Horizontal", 15),
    Sketcher.Constraint("Vertical", 16),
    Sketcher.Constraint("Horizontal", 17),
    Sketcher.Constraint("Vertical", 18),
    Sketcher.Constraint("Horizontal", 19),
    Sketcher.Constraint("Vertical", 20),
    Sketcher.Constraint("Horizontal", 21),
    Sketcher.Constraint("Equal", 5, 7),
    Sketcher.Constraint("Equal", 7, 9),
    Sketcher.Constraint("Equal", 9, 11),
    Sketcher.Constraint("Equal", 11, 13),
    Sketcher.Constraint("Equal", 13, 15),
    Sketcher.Constraint("Equal", 15, 17),
    Sketcher.Constraint("Equal", 17, 19),
    Sketcher.Constraint("Equal", 19, 21),
    Sketcher.Constraint("Equal", 21, 0),
    Sketcher.Constraint("Equal", 0, 4),
    Sketcher.Constraint("Equal", 4, 6),
    Sketcher.Constraint("Equal", 6, 8),
    Sketcher.Constraint("Equal", 8, 10),
    Sketcher.Constraint("Equal", 10, 12),
    Sketcher.Constraint("Equal", 12, 14),
    Sketcher.Constraint("Equal", 14, 16),
    Sketcher.Constraint("Equal", 16, 18),
    Sketcher.Constraint("Equal", 18, 20),
    Sketcher.Constraint("DistanceX", 1, 1, 1, 2, Q("3 in")),
    Sketcher.Constraint("DistanceX", 3, 2, 3, 1, Q("12 in")),
    Sketcher.Constraint("DistanceX", 0, 2, -1, 1, Q("3.5 in")),
    Sketcher.Constraint("DistanceY", -1, 1, 0, 2, Q("10.1 in")),
])
pad14 = body.newObject("PartDesign::Pad", "Pad013")
pad14.Profile = sketch24
pad14.Length = Q("0.5 in")
pad14.Reversed = True

# Sketch on YZ plane
sketch25 = body.newObject("Sketcher::SketchObject", "Sketch024")
sketch25.AttachmentSupport = (doc.getObject("YZ_Plane"), [""])
sketch25.MapMode = "FlatFace"
sketch25.AttachmentOffset = App.Placement(Vector(0, 0, 10 * 25.4), App.Rotation())
add_polygon(sketch25, [(325, 206), (325, 79), (160, 79), (160, 206)])  # lines 0-3
sketch25.addConstraint([
    Sketcher.Constraint("Vertical", 0),
    Sketcher.Constraint("Horizontal", 1),
    Sketcher.Constraint("Vertical", 2),
    Sketcher.Constraint("Horizontal", 3),
    Sketcher.Constraint("DistanceY", 0, 2, 0, 1, Q("5 in")),
    Sketcher.Constraint("DistanceX", 1, 2, 1, 1, Q("6.5 in")),
    Sketcher.Constraint("DistanceY", -1, 1, 0, 2, Q("3.1 in")),
    Sketcher.Constraint("DistanceX", -1, 1, 0, 2, 324.740946),
])
pocket11 = body.newObject("PartDesign::Pocket", "Pocket010")
pocket11.Profile = sketch25
pocket11.Length = Q("1 in")
pocket11.Reversed = True

# Sketch on XY plane
sketch26 = body.newObject("Sketcher::SketchObject", "Sketch025")
sketch26.AttachmentSupport = (doc.getObject("XY_Plane"), [""])
sketch26.MapMode = "FlatFace"
sketch26.AttachmentOffset = App.Placement(Vector(0, 0, 10.1 * 25.4), App.Rotation())
sketch26.addGeometry([
    Part.Circle(Vector(259, -424, 0), Vector(0, 0, 1), 5),
    Part.Circle(Vector(-259, -424, 0), Vector(0, 0, 1), 5),
    Part.Circle(Vector(-259, 424, 0), Vector(0, 0, 1), 5),
    Part.Circle(Vector(259, 424, 0), Vector(0, 0, 1), 5),
], False)
sketch26.addConstraint([
    Sketcher.Constraint("Equal", 0, 1),
    Sketcher.Constraint("Equal", 1, 2),
    Sketcher.Constraint("Equal", 2, 3),
    Sketcher.Constraint("Symmetric", 0, 3, 2, 3, -1, 1),
    Sketcher.Constraint("Symmetric", 1, 3, 3, 3, -1, 1),
    Sketcher.Constraint("Symmetric", 0, 3, 1, 3, -2),
    Sketcher.Constraint("Diameter", 0, Q("0.4 in")),
    Sketcher.Constraint("DistanceX", -1, 1, 0, 3, Q("10.2 in")),
    Sketcher.Constraint("DistanceY", 0, 3, -1, 1, Q("16.7 in")),
])
pocket12 = body.newObject("PartDesign::Pocket", "Pocket011")
pocket12.Profile = sketch26
pocket12.Length = Q("1 in")

# Sketch on XY plane
sketch27 = body.newObject("Sketcher::SketchObject", "Sketch026")
sketch27.AttachmentSupport = (doc.getObject("XY_Plane"), [""])
sketch27.MapMode = "FlatFace"
sketch27.AttachmentOffset = App.Placement(Vector(0, 0, 0.1 * 25.4), App.Rotation())
add_polygon(sketch27, [(-209, -346), (-209, -410), (-19, -410), (-19, -346)])  # lines 0-3
sketch27.addConstraint([
    Sketcher.Constraint("Vertical", 0),
    Sketcher.Constraint("Horizontal", 1),
    Sketcher.Constraint("Vertical", 2),
    Sketcher.Constraint("Horizontal", 3),
    Sketcher.Constraint("DistanceX", 1, 1, 1, 2, Q("7.5 in")),
    Sketcher.Constraint("DistanceY", 0, 2, 0, 1, Q("2.5 in")),
    Sketcher.Constraint("DistanceX", 0, 2, -1, 1, 209.381774),
    Sketcher.Constraint("DistanceY", 0, 2, -1, 1, 409.565896),
])
pad15 = body.newObject("PartDesign::Pad", "Pad014")
pad15.Profile = sketch27
pad15.Length = Q("3 in")

# Sketch on XY plane
sketch28 = body.newObject("Sketcher::SketchObject", "Sketch027")
sketch28.AttachmentSupport = (doc.getObject("XY_Plane"), [""])
sketch28.MapMode = "FlatFace"
sketch28.AttachmentOffset = App.Placement(Vector(0, 0, 3.1 * 25.4), App.Rotation())
add_polygon(sketch28, [(-197, -346), (-197, -391), (-32, -391), (-32, -346)])  # lines 0-3
sketch28.addConstraint([
    Sketcher.Constraint("Vertical", 0),
    Sketcher.Constraint("Horizontal", 1),
    Sketcher.Constraint("Vertical", 2),
    Sketcher.Constraint("Horizontal", 3),
    Sketcher.Constraint("DistanceX", 1, 1, 1, 2, Q("6.5 in")),
    Sketcher.Constraint("DistanceY", 0, 2, 0, 1, Q("1.75 in")),
    Sketcher.Constraint("DistanceX", 0, 2, -1, 1, 196.681774),
    Sketcher.Constraint("DistanceY", 0, 2, -1, 1, 390.515896),
])
pocket13 = body.newObject("PartDesign::Pocket", "Pocket012")
pocket13.Profile = sketch28
pocket13.Length = Q("2 in")

# Sketch on XY plane
sketch29 = body.newObject("Sketcher::SketchObject", "Sketch028")
sketch29.AttachmentSupport = (doc.getObject("XY_Plane"), [""])
sketch29.MapMode = "FlatFace"
sketch29.AttachmentOffset = App.Placement(Vector(0, 0, 0.1 * 25.4), App.Rotation())
add_polygon(sketch29, [(-178, -102), (-178, -305), (-51, -305), (-51, -102)])  # lines 0-3
add_polygon(sketch29, [(70, -108), (70, -298), (146, -298), (146, -108)])  # lines 4-7
sketch29.addConstraint([
    Sketcher.Constraint("Vertical", 0),
    Sketcher.Constraint("Horizontal", 1),
    Sketcher.Constraint("Vertical", 2),
    Sketcher.Constraint("Horizontal", 3),
    Sketcher.Constraint("Vertical", 4),
    Sketcher.Constraint("Horizontal", 5),
    Sketcher.Constraint("Vertical", 6),
    Sketcher.Constraint("Horizontal", 7),
    Sketcher.Constraint("DistanceX", 1, 1, 1, 2, Q("5 in")),
    Sketcher.Constraint("DistanceX", 5, 1, 5, 2, Q("3 in")),
    Sketcher.Constraint("DistanceY", 0, 2, 0, 1, Q("8 in")),
    Sketcher.Constraint("DistanceY", 4, 2, 4, 1, Q("7.5 in")),
    Sketcher.Constraint("DistanceY", 0, 2, -1, 1, Q("12 in")),
    Sketcher.Constraint("DistanceY", 4, 2, -1, 1, Q("11.75 in")),
    Sketcher.Constraint("DistanceX", -1, 1, 4, 2, 69.64133),
    Sketcher.Constraint("DistanceX", 0, 2, -1, 1, 177.631774),
])
pad16 = body.newObject("PartDesign::Pad", "Pad015")
pad16.Profile = sketch29
pad16.Length = Q("0.1 in")

# Sketch on XY plane
sketch30 = body.newObject("Sketcher::SketchObject", "Sketch029")
sketch30.AttachmentSupport = (doc.getObject("XY_Plane"), [""])
sketch30.MapMode = "FlatFace"
sketch30.AttachmentOffset = App.Placement(Vector(0, 0, 0.1 * 25.4), App.Rotation())
add_polygon(sketch30, [(197, 419), (197, 114), (254, 114), (254, 419)])  # lines 0-3
sketch30.addConstraint([
    Sketcher.Constraint("Vertical", 0),
    Sketcher.Constraint("Horizontal", 1),
    Sketcher.Constraint("Vertical", 2),
    Sketcher.Constraint("Horizontal", 3),
    Sketcher.Constraint("DistanceY", 0, 2, 0, 1, Q("12 in")),
    Sketcher.Constraint("DistanceX", -1, 1, 1, 2, Q("10 in")),
    Sketcher.Constraint("DistanceY", -1, 1, 0, 2, Q("4.5 in")),
    Sketcher.Constraint("DistanceX", 1, 1, 1, 2, 56.578732),
])
pad17 = body.newObject("PartDesign::Pad", "Pad016")
pad17.Profile = sketch30
pad17.Length = Q("2.5 in")

# Sketch on XY plane
sketch31 = body.newObject("Sketcher::SketchObject", "Sketch030")
sketch31.AttachmentSupport = (doc.getObject("XY_Plane"), [""])
sketch31.MapMode = "FlatFace"
sketch31.AttachmentOffset = App.Placement(Vector(0, 0, 0.1 * 25.4), App.Rotation())
add_polygon(sketch31, [(51, 419), (51, 241), (102, 241), (102, 419)])  # lines 0-3
sketch31.addConstraint([
    Sketcher.Constraint("Vertical", 0),
    Sketcher.Constraint("Horizontal", 1),
    Sketcher.Constraint("Vertical", 2),
    Sketcher.Constraint("Horizontal", 3),
    Sketcher.Constraint("DistanceX", 1, 1, 1, 2, Q("2 in")),
    Sketcher.Constraint("DistanceY", 0, 2, 0, 1, Q("7 in")),
    Sketcher.Constraint("DistanceX", -1, 1, 0, 2, Q("2 in")),
    Sketcher.Constraint("DistanceY", -1, 1, 0, 2, Q("9.5 in")),
])
pad18 = body.newObject("PartDesign::Pad", "Pad017")
pad18.Profile = sketch31
pad18.Length = Q("3 in")

# Sketch on XY plane
sketch32 = body.newObject("Sketcher::SketchObject", "Sketch031")
sketch32.AttachmentSupport = (doc.getObject("XY_Plane"), [""])
sketch32.MapMode = "FlatFace"
sketch32.AttachmentOffset = App.Placement(Vector(0, 0, 0.1 * 25.4), App.Rotation())
add_polygon(sketch32, [(122, 241), (51, 241), (51, 176), (122, 176)])  # lines 0-3
sketch32.addConstraint([
    Sketcher.Constraint("Horizontal", 0),
    Sketcher.Constraint("Vertical", 1),
    Sketcher.Constraint("Horizontal", 2),
    Sketcher.Constraint("Vertical", 3),
    Sketcher.Constraint("DistanceX", -1, 1, 0, 2, Q("2 in")),
    Sketcher.Constraint("DistanceY", -1, 1, 0, 2, Q("9.5 in")),
    Sketcher.Constraint("DistanceX", 0, 2, 0, 1, 70.933606),
    Sketcher.Constraint("DistanceY", 1, 2, 1, 1, 65.462588),
])
pad19 = body.newObject("PartDesign::Pad", "Pad018")
pad19.Profile = sketch32
pad19.Length = Q("3.5 in")

# Sketch on XY plane
sketch33 = body.newObject("Sketcher::SketchObject", "Sketch032")
sketch33.AttachmentSupport = (doc.getObject("XY_Plane"), [""])
sketch33.MapMode = "FlatFace"
sketch33.AttachmentOffset = App.Placement(Vector(0, 0, 0.1 * 25.4), App.Rotation())
add_polygon(sketch33, [(51, 176), (51, 111), (102, 111), (102, 176)])  # lines 0-3
sketch33.addConstraint([
    Sketcher.Constraint("Vertical", 0),
    Sketcher.Constraint("Horizontal", 1),
    Sketcher.Constraint("Vertical", 2),
    Sketcher.Constraint("Horizontal", 3),
    Sketcher.Constraint("DistanceX", 1, 1, 1, 2, Q("2 in")),
    Sketcher.Constraint("DistanceX", -1, 1, 0, 2, Q("2 in")),
    Sketcher.Constraint("DistanceY", 0, 2, 0, 1, 64.703226),
    Sketcher.Constraint("DistanceY", -1, 1, 0, 2, 111.134186),
])
pad20 = body.newObject("PartDesign::Pad", "Pad019")
pad20.Profile = sketch33
pad20.Length = Q("7 in")

# Sketch on XY plane
sketch34 = body.newObject("Sketcher::SketchObject", "Sketch033")
sketch34.AttachmentSupport = (doc.getObject("XY_Plane"), [""])
sketch34.MapMode = "FlatFace"
sketch34.AttachmentOffset = App.Placement(Vector(0, 0, 0.1 * 25.4), App.Rotation())
add_polygon(sketch34, [(-165, 318), (-165, 114), (-64, 114), (-64, 318)])  # lines 0-3
sketch34.addConstraint([
    Sketcher.Constraint("Vertical", 0),
    Sketcher.Constraint("Horizontal", 1),
    Sketcher.Constraint("Vertical", 2),
    Sketcher.Constraint("Horizontal", 3),
    Sketcher.Constraint("DistanceX", 1, 1, 1, 2, Q("4 in")),
    Sketcher.Constraint("DistanceY", 0, 2, 0, 1, Q("8 in")),
    Sketcher.Constraint("DistanceX", 0, 2, -1, 1, Q("6.5 in")),
    Sketcher.Constraint("DistanceY", -1, 1, 0, 2, Q("4.5 in")),
])
pad21 = body.newObject("PartDesign::Pad", "Pad020")
pad21.Profile = sketch34
pad21.Length = Q("3.5 in")

# Sketch on XZ plane
sketch35 = body.newObject("Sketcher::SketchObject", "Sketch034")
sketch35.AttachmentSupport = (doc.getObject("XZ_Plane"), [""])
sketch35.MapMode = "FlatFace"
sketch35.AttachmentOffset = App.Placement(Vector(0, 0, -4.5 * 25.4), App.Rotation())
add_polygon(sketch35, [(-153, 74), (-153, 3), (-74, 3), (-74, 74)])  # lines 0-3
sketch35.addConstraint([
    Sketcher.Constraint("Vertical", 0),
    Sketcher.Constraint("Horizontal", 1),
    Sketcher.Constraint("Vertical", 2),
    Sketcher.Constraint("Horizontal", 3),
    Sketcher.Constraint("DistanceY", -1, 1, 0, 2, Q("0.1 in")),
    Sketcher.Constraint("DistanceX", 1, 1, 1, 2, 79.55841),
    Sketcher.Constraint("DistanceY", 0, 2, 0, 1, 71.442678),
    Sketcher.Constraint("DistanceX", 1, 2, -1, 1, 73.809601),
])
pocket14 = body.newObject("PartDesign::Pocket", "Pocket013")
pocket14.Profile = sketch35
pocket14.Length = Q("8 in")

# Sketch on YZ plane
sketch36 = body.newObject("Sketcher::SketchObject", "Sketch035")
sketch36.AttachmentSupport = (doc.getObject("YZ_Plane"), [""])
sketch36.MapMode = "FlatFace"
sketch36.AttachmentOffset = App.Placement(Vector(0, 0, -2.5 * 25.4), App.Rotation())
add_polygon(sketch36, [(128, 80), (128, 3), (305, 3), (305, 80)])  # lines 0-3
sketch36.addConstraint([
    Sketcher.Constraint("Vertical", 0),
    Sketcher.Constraint("Horizontal", 1),
    Sketcher.Constraint("Vertical", 2),
    Sketcher.Constraint("Horizontal", 3),
    Sketcher.Constraint("DistanceY", -1, 1, 0, 2, Q("0.1 in")),
    Sketcher.Constraint("DistanceX", 1, 1, 1, 2, 177.177072),
    Sketcher.Constraint("DistanceY", 0, 2, 0, 1, 77.118933),
    Sketcher.Constraint("DistanceX", -1, 1, 0, 2, 127.70775),
])
pocket15 = body.newObject("PartDesign::Pocket", "Pocket014")
pocket15.Profile = sketch36
pocket15.Length = Q("4 in")

# Sketch on YZ plane
sketch37 = body.newObject("Sketcher::SketchObject", "Sketch036")
sketch37.AttachmentSupport = (doc.getObject("YZ_Plane"), [""])
sketch37.MapMode = "FlatFace"
sketch37.AttachmentOffset = App.Placement(Vector(0, 0, -10 * 25.4), App.Rotation())
add_polygon(sketch37, [(-295, 219), (-295, 138), (-181, 138), (-181, 219)])  # lines 0-3
sketch37.addConstraint([
    Sketcher.Constraint("Vertical", 0),
    Sketcher.Constraint("Horizontal", 1),
    Sketcher.Constraint("Vertical", 2),
    Sketcher.Constraint("Horizontal", 3),
    Sketcher.Constraint("DistanceX", 1, 1, 1, 2, Q("4.5 in")),
    Sketcher.Constraint("DistanceY", 0, 2, 0, 1, Q("3.2 in")),
    Sketcher.Constraint("DistanceY", -1, 1, 0, 2, 137.846708),
    Sketcher.Constraint("DistanceX", 0, 2, -1, 1, 294.980332),
])
pad22 = body.newObject("PartDesign::Pad", "Pad021")
pad22.Profile = sketch37
pad22.Length = Q("0.5 in")

# Sketch on XY plane
sketch38 = body.newObject("Sketcher::SketchObject", "Sketch037")
sketch38.AttachmentSupport = (doc.getObject("XY_Plane"), [""])
sketch38.MapMode = "FlatFace"
sketch38.AttachmentOffset = App.Placement(Vector(0, 0, 0.1 * 25.4), App.Rotation())
add_polygon(sketch38, [(-46, -89), (15, -89), (15, -28), (-46, -28)])  # lines 0-3
sketch38.addConstraint([
    Sketcher.Constraint("Horizontal", 0),
    Sketcher.Constraint("Horizontal", 2),
    Sketcher.Constraint("Vertical", 3),
    Sketcher.Constraint("Equal", 2, 3),
    Sketcher.Constraint("DistanceX", 2, 2, 2, 1, Q("2.4 in")),
    Sketcher.Constraint("DistanceX", 0, 1, 0, 2, 60.964249),
    Sketcher.Constraint("DistanceY", 0, 2, -1, 1, 88.533551),
    Sketcher.Constraint("DistanceX", -1, 1, 1, 2, 14.677738),
])
pad23 = body.newObject("PartDesign::Pad", "Pad022")
pad23.Profile = sketch38
pad23.Length = Q("3 in")

# Sketch on XY plane
sketch39 = body.newObject("Sketcher::SketchObject", "Sketch038")
sketch39.AttachmentSupport = (doc.getObject("XY_Plane"), [""])
sketch39.MapMode = "FlatFace"
sketch39.AttachmentOffset = App.Placement(Vector(0, 0, 3.1 * 25.4), App.Rotation())
add_polygon(sketch39, [(-46, -36), (-46, -82), (-8, -82), (-8, -36)])  # lines 0-3
sketch39.addConstraint([
    Sketcher.Constraint("Vertical", 0),
    Sketcher.Constraint("Horizontal", 1),
    Sketcher.Constraint("Vertical", 2),
    Sketcher.Constraint("Horizontal", 3),
    Sketcher.Constraint("DistanceX", 1, 1, 1, 2, Q("1.5 in")),
    Sketcher.Constraint("DistanceY", 0, 2, 0, 1, Q("1.8 in")),
    Sketcher.Constraint("DistanceX", 0, 2, -1, 1, 46.282262),
    Sketcher.Constraint("DistanceY", 0, 2, -1, 1, 81.760133),
])
pocket16 = body.newObject("PartDesign::Pocket", "Pocket015")
pocket16.Profile = sketch39
pocket16.Length = Q("2 in")

# Sketch on XY plane
sketch40 = body.newObject("Sketcher::SketchObject", "Sketch039")
sketch40.AttachmentSupport = (doc.getObject("XY_Plane"), [""])
sketch40.MapMode = "FlatFace"
sketch40.AttachmentOffset = App.Placement(Vector(0, 0, 3.1 * 25.4), App.Rotation())
add_polygon(sketch40, [(-46, -28), (-46, -36), (-8, -36), (-8, -28)])  # lines 0-3
add_polygon(sketch40, [(-46, -82), (-46, -89), (-8, -89), (-8, -82)])  # lines 4-7
sketch40.addConstraint([
    Sketcher.Constraint("Vertical", 0),
    Sketcher.Constraint("Horizontal", 1),
    Sketcher.Constraint("Vertical", 2),
    Sketcher.Constraint("Horizontal", 3),
    Sketcher.Constraint("Vertical", 4),
    Sketcher.Constraint("Horizontal", 5),
    Sketcher.Constraint("Vertical", 6),
    Sketcher.Constraint("Horizontal", 7),
    Sketcher.Constraint("Vertical", 3, 2, 4, 2),
    Sketcher.Constraint("Vertical", 2, 2, 5, 2),
    Sketcher.Constraint("DistanceX", 1, 1, 1, 2, Q("1.5 in")),
    Sketcher.Constraint("DistanceY", 4, 2, 3, 2, Q("2.4 in")),
    Sketcher.Constraint("DistanceY", 6, 2, 1, 2, Q("1.8 in")),
    Sketcher.Constraint("DistanceY", 0, 2, 0, 1, 8.466582),
    Sketcher.Constraint("DistanceX", 0, 2, -1, 1, 46.282262),
    Sketcher.Constraint("DistanceY", 2, 2, -1, 1, 27.573551),
])
pocket17 = body.newObject("PartDesign::Pocket", "Pocket016")
pocket17.Profile = sketch40
pocket17.Length = Q("1.5 in")

doc.recompute()
